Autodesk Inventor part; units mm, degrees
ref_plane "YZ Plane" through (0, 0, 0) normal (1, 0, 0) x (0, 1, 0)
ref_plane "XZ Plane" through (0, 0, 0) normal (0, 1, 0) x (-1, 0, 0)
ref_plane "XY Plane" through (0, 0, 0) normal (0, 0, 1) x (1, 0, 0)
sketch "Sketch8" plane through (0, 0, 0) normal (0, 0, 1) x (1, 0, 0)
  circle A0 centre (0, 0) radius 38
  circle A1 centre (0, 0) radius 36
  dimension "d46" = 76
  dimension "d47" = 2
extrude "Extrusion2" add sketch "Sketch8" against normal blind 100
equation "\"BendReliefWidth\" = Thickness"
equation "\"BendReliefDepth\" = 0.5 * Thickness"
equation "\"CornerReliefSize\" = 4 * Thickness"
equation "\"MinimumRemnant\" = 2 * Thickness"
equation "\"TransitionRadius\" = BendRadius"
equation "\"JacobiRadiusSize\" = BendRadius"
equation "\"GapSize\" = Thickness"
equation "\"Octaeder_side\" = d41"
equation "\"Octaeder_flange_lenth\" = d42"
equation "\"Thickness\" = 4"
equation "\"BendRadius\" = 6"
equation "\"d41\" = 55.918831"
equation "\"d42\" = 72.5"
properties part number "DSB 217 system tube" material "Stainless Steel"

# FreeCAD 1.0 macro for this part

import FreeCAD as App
import Part
import Sketcher
from FreeCAD import Vector

doc = App.newDocument("Part")
body = doc.addObject("PartDesign::Body", "Body")

sketch1 = doc.addObject("Sketcher::SketchObject", "Sketch")
body.addObject(sketch1)
sketch1.AttachmentSupport = (doc.XY_Plane, [""])
sketch1.MapMode = "FlatFace"
sketch1.addGeometry([
    Part.Circle(Vector(0, 0, 0), Vector(0, 0, 1), 38),
    Part.Circle(Vector(0, 0, 0), Vector(0, 0, 1), 36),
], False)
sketch1.addConstraint([
    Sketcher.Constraint("Coincident", 0, 3, -1, 1),
    Sketcher.Constraint("Coincident", 1, 3, -1, 1),
    Sketcher.Constraint("Diameter", 0, 76.0),
    Sketcher.Constraint("Diameter", 1, 72.0),
])
pad1 = doc.addObject("PartDesign::Pad", "Pad")
body.addObject(pad1)
pad1.Profile = sketch1
pad1.Length = 100
pad1.Reversed = True

doc.recompute()
